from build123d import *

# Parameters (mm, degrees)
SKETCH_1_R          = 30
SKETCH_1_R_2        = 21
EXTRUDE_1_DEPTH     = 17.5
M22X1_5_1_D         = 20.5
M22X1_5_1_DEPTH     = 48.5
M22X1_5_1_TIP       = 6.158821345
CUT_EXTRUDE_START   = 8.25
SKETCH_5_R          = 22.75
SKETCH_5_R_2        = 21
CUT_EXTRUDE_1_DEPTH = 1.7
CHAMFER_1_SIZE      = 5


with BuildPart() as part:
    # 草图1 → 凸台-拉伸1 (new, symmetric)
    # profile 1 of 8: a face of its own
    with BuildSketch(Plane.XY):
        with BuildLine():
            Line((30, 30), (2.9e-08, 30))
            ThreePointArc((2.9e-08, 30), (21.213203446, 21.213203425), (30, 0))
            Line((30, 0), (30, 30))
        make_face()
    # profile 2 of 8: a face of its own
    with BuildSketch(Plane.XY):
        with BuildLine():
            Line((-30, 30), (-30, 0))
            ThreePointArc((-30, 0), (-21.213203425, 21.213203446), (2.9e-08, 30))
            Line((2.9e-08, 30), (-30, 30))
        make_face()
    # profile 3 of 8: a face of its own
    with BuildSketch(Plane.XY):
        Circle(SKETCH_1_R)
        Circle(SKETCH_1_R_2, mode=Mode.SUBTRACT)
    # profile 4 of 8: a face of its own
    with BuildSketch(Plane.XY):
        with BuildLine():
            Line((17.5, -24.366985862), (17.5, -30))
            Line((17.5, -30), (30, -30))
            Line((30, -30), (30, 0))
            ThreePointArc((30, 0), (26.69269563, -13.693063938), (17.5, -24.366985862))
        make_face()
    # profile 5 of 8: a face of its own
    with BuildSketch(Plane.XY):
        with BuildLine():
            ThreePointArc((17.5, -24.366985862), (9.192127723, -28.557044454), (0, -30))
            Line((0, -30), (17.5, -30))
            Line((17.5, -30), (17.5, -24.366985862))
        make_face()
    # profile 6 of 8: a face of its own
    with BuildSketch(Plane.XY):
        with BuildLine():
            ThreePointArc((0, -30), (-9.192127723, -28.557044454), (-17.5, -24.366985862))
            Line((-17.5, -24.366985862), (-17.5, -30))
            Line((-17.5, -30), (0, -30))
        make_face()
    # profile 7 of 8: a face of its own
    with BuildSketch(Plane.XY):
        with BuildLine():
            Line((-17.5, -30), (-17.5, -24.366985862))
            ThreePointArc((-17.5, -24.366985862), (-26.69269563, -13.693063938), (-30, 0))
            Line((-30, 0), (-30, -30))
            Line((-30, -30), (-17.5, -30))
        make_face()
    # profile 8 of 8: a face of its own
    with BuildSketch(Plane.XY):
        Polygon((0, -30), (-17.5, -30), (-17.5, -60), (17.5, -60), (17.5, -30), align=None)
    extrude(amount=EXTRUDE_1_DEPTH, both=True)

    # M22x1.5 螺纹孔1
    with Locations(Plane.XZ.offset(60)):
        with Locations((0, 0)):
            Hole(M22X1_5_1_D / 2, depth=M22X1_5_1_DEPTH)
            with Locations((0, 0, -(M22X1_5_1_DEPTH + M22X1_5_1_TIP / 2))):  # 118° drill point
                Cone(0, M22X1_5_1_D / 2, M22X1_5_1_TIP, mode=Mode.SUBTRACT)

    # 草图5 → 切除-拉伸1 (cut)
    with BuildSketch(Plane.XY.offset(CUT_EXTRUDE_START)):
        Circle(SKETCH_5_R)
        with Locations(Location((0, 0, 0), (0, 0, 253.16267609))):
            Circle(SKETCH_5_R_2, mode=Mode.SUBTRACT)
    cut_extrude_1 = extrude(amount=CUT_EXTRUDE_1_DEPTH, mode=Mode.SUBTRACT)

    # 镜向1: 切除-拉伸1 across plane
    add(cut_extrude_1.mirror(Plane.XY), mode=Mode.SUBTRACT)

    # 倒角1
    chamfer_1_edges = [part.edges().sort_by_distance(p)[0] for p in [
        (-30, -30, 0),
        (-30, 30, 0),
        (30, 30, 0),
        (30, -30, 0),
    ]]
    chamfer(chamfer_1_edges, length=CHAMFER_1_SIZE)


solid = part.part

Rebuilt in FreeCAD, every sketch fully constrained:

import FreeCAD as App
import Part
import Sketcher

V = App.Vector


def edges_at(feature, points):
    """Names of the edges that pass closest to the given points."""
    edges = feature.Shape.Edges
    near = lambda p: min(range(len(edges)), key=lambda i: edges[i].distToShape(Part.Vertex(*p))[0])
    return sorted({f"Edge{near(p) + 1}" for p in points})


def add_polygon(sketch, points):
    """Adds a closed chain of lines whose ends are joined by coincident constraints."""
    first, n = sketch.GeometryCount, len(points)
    for a, b in zip(points, points[1:] + points[:1]):
        sketch.addGeometry(Part.LineSegment(App.Vector(*a, 0), App.Vector(*b, 0)), False)
    for i in range(n):
        sketch.addConstraint(Sketcher.Constraint("Coincident", first + i, 2, first + (i + 1) % n, 1))

doc = App.newDocument("Part")
body = doc.addObject("PartDesign::Body", "Body")

# Sketch on XY plane
sketch1 = body.newObject("Sketcher::SketchObject", "Sketch")
sketch1.AttachmentSupport = (doc.getObject("XY_Plane"), [""])
sketch1.MapMode = "FlatFace"
add_polygon(sketch1, [(30, 30), (-30, 30), (-30, -30), (-18, -30), (-18, -60), (18, -60), (18, -30), (30, -30)])  # lines 0-7
sketch1.addGeometry(Part.Circle(V(0, 0, 0), V(0, 0, 1), 21), False)  # 8
sketch1.addConstraint([
    Sketcher.Constraint("Horizontal", 0),
    Sketcher.Constraint("Vertical", 1),
    Sketcher.Constraint("Horizontal", 2),
    Sketcher.Constraint("Vertical", 3),
    Sketcher.Constraint("Horizontal", 4),
    Sketcher.Constraint("Vertical", 5),
    Sketcher.Constraint("Horizontal", 6),
    Sketcher.Constraint("Vertical", 7),
    Sketcher.Constraint("Coincident", 8, 3, -1, 1),
    Sketcher.Constraint("Symmetric", 0, 2, 6, 2, -1, 1),
    Sketcher.Constraint("Symmetric", 2, 2, 5, 2, -2),
    Sketcher.Constraint("Equal", 0, 1),
    Sketcher.Constraint("Diameter", 8, 42.0),
    Sketcher.Constraint("DistanceX", 0, 2, 0, 1, 60.0),
    Sketcher.Constraint("DistanceX", 4, 1, 4, 2, 35.0),
    Sketcher.Constraint("DistanceY", 3, 2, 3, 1, 30.0),
])
pad1 = body.newObject("PartDesign::Pad", "Pad")
pad1.Profile = sketch1
pad1.Length = 35
pad1.Midplane = True

# Sketch on XZ plane
sketch2 = body.newObject("Sketcher::SketchObject", "Sketch001")
sketch2.AttachmentSupport = (doc.getObject("XZ_Plane"), [""])
sketch2.MapMode = "FlatFace"
sketch2.AttachmentOffset = App.Placement(V(0, 0, 60), App.Rotation())
sketch2.addGeometry(Part.Circle(V(0, 0, 0), V(0, 0, 1), 10), False)
sketch2.addConstraint([
    Sketcher.Constraint("Coincident", 0, 3, -1, 1),
    Sketcher.Constraint("Diameter", 0, 20.5),
])
doc.recompute()
hole = body.newObject("PartDesign::Hole", "Hole")
hole.Profile = sketch2
hole.ThreadType = "None"
hole.Diameter = 20.5
hole.DepthType = "Dimension"
hole.Depth = 48.5
hole.DrillPoint = "Angled"
hole.DrillPointAngle = 118

# Sketch on XY plane
sketch3 = body.newObject("Sketcher::SketchObject", "Sketch002")
sketch3.AttachmentSupport = (doc.getObject("XY_Plane"), [""])
sketch3.MapMode = "FlatFace"
sketch3.AttachmentOffset = App.Placement(V(0, 0, 8.25), App.Rotation())
sketch3.addGeometry([
    Part.Circle(V(0, 0, 0), V(0, 0, 1), 23),
    Part.Circle(V(0, 0, 0), V(0, 0, 1), 21),
], False)
sketch3.addConstraint([
    Sketcher.Constraint("Coincident", 0, 3, -1, 1),
    Sketcher.Constraint("Coincident", 1, 3, -1, 1),
    Sketcher.Constraint("Diameter", 1, 42.0),
    Sketcher.Constraint("Diameter", 0, 45.5),
])
pocket1 = body.newObject("PartDesign::Pocket", "Pocket")
pocket1.Profile = sketch3
pocket1.Length = 1.7
pocket1.Reversed = True
doc.recompute()

mirrored = body.newObject("PartDesign::Mirrored", "Mirrored")
mirrored.Originals = [pocket1]
mirrored.MirrorPlane = (doc.getObject("XY_Plane"), [""])
body.Tip = mirrored
doc.recompute()

chamfer = body.newObject("PartDesign::Chamfer", "Chamfer")
chamfer.Base = (mirrored, edges_at(mirrored, [
    (-30, -30, 0),
    (-30, 30, 0),
    (30, 30, 0),
    (30, -30, 0),
]))
chamfer.Size = 5

doc.recompute()
